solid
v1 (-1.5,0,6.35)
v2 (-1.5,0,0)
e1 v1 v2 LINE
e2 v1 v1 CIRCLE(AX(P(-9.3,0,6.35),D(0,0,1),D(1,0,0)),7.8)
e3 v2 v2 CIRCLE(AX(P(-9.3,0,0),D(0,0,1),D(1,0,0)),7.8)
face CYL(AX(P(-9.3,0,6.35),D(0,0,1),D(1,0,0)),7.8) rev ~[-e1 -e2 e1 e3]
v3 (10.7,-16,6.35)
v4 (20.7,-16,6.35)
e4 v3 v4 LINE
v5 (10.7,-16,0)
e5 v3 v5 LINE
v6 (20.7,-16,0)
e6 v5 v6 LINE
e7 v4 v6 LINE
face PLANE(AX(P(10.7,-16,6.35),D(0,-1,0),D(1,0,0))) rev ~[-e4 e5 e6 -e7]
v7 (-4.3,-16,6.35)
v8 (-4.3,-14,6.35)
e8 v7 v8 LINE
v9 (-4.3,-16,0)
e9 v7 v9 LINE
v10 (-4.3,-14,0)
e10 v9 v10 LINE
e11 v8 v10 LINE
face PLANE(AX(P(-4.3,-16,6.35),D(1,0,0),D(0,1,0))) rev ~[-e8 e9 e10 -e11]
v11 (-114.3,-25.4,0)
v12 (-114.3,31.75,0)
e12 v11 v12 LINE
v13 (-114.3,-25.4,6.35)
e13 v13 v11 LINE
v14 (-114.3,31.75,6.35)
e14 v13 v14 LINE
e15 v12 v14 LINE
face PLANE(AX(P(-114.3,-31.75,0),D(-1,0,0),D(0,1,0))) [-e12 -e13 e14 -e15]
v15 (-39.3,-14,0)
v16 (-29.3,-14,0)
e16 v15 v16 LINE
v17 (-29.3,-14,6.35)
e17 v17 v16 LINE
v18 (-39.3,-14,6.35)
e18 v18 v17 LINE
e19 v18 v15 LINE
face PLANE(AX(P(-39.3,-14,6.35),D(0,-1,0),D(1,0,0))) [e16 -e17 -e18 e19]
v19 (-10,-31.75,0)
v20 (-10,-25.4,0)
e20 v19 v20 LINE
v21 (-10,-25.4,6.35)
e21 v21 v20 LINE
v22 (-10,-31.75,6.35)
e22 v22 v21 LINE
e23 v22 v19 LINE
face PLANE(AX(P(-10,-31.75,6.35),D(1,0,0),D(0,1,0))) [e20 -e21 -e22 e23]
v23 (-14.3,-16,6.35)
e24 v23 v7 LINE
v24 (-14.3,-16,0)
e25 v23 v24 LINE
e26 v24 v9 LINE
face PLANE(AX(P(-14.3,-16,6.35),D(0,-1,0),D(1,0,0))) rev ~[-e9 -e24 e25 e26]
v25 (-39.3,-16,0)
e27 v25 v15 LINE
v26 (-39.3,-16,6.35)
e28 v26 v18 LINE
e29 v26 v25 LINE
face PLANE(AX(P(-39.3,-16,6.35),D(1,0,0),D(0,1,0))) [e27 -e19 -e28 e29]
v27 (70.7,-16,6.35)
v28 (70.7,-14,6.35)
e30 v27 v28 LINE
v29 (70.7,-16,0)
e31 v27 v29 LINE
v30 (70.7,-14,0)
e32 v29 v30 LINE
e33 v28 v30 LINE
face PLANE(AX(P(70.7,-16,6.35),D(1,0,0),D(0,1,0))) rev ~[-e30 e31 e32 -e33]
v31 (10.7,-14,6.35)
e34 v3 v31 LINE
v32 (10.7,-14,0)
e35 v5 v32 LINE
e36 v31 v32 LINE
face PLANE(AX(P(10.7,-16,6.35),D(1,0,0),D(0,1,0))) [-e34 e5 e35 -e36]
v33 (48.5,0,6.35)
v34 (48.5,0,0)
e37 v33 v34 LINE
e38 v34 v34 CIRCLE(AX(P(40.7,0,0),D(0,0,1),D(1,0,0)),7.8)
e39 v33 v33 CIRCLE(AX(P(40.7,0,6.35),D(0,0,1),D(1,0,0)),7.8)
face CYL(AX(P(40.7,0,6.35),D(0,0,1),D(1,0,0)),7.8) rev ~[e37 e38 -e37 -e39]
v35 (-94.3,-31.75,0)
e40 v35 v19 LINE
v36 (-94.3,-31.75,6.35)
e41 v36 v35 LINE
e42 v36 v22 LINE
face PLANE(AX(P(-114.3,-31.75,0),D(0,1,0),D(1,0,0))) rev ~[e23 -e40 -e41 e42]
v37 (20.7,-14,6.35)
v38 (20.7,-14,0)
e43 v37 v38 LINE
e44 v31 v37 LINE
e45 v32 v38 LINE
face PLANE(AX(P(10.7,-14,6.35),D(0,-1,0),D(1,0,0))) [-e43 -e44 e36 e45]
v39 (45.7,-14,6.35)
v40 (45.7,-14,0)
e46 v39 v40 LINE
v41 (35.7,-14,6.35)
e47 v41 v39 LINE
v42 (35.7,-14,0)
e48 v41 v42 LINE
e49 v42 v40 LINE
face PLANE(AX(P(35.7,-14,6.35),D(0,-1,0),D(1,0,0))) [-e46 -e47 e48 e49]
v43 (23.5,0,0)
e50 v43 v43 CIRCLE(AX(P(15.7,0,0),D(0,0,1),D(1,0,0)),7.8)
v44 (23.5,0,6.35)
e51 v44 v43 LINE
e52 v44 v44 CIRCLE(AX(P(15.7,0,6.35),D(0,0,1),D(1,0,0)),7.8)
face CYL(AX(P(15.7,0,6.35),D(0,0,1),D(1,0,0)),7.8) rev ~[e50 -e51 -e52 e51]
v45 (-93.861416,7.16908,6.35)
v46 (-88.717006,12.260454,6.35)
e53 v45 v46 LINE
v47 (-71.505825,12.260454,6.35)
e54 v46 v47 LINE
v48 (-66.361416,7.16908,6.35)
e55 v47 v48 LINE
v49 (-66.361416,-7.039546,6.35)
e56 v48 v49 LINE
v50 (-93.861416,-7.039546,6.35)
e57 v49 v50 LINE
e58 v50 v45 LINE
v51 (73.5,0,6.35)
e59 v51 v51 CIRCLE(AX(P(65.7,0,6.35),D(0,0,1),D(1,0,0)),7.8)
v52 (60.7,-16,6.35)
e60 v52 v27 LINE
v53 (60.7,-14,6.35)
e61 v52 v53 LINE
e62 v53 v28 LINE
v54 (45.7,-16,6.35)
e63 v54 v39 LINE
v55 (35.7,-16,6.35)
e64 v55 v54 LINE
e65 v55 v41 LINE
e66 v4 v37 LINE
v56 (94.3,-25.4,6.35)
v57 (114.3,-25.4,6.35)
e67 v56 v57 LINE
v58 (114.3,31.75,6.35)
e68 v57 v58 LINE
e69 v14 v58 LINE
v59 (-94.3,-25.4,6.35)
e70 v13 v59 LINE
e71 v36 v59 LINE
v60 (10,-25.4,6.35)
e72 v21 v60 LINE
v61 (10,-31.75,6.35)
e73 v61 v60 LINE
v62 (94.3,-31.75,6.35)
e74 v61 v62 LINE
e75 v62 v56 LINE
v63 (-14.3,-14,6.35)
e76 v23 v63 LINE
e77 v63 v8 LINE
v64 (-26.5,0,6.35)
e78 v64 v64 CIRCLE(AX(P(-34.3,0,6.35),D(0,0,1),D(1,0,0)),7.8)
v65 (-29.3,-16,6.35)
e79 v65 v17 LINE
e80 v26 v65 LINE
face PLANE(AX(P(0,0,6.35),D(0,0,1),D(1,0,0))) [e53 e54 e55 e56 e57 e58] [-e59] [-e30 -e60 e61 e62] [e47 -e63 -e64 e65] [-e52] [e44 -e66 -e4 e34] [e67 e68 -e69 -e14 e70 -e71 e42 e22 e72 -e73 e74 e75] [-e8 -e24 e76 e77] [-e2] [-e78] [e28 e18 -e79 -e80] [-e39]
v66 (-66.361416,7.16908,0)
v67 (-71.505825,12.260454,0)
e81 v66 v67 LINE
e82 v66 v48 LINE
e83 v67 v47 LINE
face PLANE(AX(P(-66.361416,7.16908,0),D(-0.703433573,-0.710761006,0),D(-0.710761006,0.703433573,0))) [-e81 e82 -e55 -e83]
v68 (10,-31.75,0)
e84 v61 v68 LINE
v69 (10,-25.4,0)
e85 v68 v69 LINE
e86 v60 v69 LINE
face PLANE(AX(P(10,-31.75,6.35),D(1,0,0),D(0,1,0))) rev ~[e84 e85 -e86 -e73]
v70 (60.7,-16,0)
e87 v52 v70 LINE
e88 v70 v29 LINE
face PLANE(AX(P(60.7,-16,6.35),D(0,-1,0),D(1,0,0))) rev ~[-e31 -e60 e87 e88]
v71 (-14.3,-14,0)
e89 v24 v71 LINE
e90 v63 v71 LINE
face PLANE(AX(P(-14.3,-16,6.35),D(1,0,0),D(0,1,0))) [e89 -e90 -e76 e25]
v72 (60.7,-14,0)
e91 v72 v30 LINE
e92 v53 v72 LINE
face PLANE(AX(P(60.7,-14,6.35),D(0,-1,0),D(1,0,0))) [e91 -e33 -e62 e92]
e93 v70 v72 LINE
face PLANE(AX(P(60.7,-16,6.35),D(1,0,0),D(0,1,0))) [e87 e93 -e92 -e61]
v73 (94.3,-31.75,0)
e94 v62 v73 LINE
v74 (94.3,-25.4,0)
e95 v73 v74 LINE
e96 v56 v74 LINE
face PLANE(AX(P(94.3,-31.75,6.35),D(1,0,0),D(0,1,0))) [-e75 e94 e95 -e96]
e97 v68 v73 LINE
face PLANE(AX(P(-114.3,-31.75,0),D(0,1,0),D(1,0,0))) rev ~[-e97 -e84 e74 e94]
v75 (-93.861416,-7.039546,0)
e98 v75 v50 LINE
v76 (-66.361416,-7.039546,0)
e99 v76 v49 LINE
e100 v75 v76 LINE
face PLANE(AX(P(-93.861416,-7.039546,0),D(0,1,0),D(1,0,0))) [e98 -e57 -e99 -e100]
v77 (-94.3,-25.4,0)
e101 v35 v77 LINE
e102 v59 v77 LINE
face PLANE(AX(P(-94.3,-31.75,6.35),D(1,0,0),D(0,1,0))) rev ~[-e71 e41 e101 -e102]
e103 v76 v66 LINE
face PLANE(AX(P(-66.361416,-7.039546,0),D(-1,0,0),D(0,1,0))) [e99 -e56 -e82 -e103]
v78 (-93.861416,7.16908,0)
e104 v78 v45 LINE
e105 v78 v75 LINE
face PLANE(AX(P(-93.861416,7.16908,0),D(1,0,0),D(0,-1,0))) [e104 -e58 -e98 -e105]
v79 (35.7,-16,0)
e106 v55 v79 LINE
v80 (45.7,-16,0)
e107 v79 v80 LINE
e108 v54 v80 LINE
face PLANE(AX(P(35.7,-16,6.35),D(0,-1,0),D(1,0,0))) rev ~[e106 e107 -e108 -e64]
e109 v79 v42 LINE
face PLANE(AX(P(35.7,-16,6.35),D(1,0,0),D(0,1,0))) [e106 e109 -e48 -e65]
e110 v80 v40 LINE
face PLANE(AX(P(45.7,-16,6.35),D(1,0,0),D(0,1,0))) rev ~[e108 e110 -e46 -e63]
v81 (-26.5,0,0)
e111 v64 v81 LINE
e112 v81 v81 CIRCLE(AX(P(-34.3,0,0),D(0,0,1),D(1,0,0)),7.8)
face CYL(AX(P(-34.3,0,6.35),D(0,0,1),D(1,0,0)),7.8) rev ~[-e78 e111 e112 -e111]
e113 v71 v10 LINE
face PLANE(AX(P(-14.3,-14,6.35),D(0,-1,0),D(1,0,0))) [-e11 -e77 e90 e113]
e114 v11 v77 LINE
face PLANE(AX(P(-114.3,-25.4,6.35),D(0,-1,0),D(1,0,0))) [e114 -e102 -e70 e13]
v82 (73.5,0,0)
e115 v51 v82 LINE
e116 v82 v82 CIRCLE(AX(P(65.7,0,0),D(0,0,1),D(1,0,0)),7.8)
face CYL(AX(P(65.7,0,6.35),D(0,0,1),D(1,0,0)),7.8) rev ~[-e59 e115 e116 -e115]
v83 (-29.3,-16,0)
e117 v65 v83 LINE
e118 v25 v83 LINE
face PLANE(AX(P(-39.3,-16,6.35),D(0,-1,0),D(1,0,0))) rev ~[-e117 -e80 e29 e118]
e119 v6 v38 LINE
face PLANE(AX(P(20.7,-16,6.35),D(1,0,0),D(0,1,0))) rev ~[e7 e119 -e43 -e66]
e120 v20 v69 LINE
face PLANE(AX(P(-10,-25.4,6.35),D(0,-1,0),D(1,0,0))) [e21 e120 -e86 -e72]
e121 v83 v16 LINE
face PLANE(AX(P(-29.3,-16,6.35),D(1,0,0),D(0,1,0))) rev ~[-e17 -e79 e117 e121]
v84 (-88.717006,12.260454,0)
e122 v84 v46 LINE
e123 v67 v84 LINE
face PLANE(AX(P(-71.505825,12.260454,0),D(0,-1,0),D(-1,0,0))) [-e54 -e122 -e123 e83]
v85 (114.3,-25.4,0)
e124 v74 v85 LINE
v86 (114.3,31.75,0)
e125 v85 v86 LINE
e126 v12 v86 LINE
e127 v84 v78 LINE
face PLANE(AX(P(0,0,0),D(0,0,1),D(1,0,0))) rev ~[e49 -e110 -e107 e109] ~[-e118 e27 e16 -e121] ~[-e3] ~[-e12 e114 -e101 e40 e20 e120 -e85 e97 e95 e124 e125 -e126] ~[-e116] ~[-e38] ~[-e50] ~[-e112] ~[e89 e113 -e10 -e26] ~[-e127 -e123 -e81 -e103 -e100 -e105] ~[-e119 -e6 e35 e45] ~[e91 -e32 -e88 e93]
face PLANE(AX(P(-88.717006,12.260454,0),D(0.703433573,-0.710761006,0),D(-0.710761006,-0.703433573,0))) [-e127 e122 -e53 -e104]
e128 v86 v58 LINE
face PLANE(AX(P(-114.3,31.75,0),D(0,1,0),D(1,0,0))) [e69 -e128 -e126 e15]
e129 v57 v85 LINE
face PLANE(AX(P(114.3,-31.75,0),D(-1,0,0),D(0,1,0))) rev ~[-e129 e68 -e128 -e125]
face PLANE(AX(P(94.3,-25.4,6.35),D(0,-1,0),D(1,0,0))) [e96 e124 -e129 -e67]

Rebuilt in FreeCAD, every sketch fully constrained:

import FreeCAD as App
import Part
import Sketcher

V = App.Vector


def add_polygon(sketch, points):
    """Adds a closed chain of lines whose ends are joined by coincident constraints."""
    first, n = sketch.GeometryCount, len(points)
    for a, b in zip(points, points[1:] + points[:1]):
        sketch.addGeometry(Part.LineSegment(App.Vector(*a, 0), App.Vector(*b, 0)), False)
    for i in range(n):
        sketch.addConstraint(Sketcher.Constraint("Coincident", first + i, 2, first + (i + 1) % n, 1))

doc = App.newDocument("Part")
body = doc.addObject("PartDesign::Body", "Body")

sketch1 = body.newObject("Sketcher::SketchObject", "Sketch")
sketch1.AttachmentSupport = (doc.getObject("XY_Plane"), [""])
sketch1.MapMode = "FlatFace"
add_polygon(sketch1, [(-114, 32), (-114, -32), (114, -32), (114, 32)])
sketch1.addConstraint(Sketcher.Constraint("Vertical", 0))
sketch1.addConstraint(Sketcher.Constraint("Horizontal", 1))
sketch1.addConstraint(Sketcher.Constraint("Vertical", 2))
sketch1.addConstraint(Sketcher.Constraint("Horizontal", 3))
sketch1.addConstraint(Sketcher.Constraint("Symmetric", 0, 2, 2, 2, -1, 1))
sketch1.addConstraint(Sketcher.Constraint("DistanceX", 1, 1, 1, 2, 228.6))
sketch1.addConstraint(Sketcher.Constraint("DistanceY", 0, 2, 0, 1, 63.5))
pad1 = body.newObject("PartDesign::Pad", "Pad")
pad1.Profile = sketch1
pad1.Length = 6.35

sketch2 = body.newObject("Sketcher::SketchObject", "Sketch001")
sketch2.AttachmentSupport = (doc.getObject("XY_Plane"), [""])
sketch2.MapMode = "FlatFace"
sketch2.AttachmentOffset = App.Placement(V(0, 0, 6.35), App.Rotation())
sketch2.addGeometry(Part.Circle(V(-34.3, 0, 0), V(0, 0, 1), 7.8), False)
sketch2.addGeometry(Part.Circle(V(-9.3, 0, 0), V(0, 0, 1), 7.8), False)
sketch2.addGeometry(Part.Circle(V(15.7, 0, 0), V(0, 0, 1), 7.8), False)
sketch2.addGeometry(Part.Circle(V(40.7, 0, 0), V(0, 0, 1), 7.8), False)
sketch2.addGeometry(Part.Circle(V(65.7, 0, 0), V(0, 0, 1), 7.8), False)
add_polygon(sketch2, [(-114.3, -25.4), (-114.3, -31.8), (-94.3, -31.8), (-94.3, -25.4)])
add_polygon(sketch2, [(-10, -25.4), (-10, -31.8), (10, -31.8), (10, -25.4)])
add_polygon(sketch2, [(94.3, -25.4), (94.3, -31.8), (114.3, -31.8), (114.3, -25.4)])
add_polygon(sketch2, [(-14.3, -14), (-14.3, -16), (-4.3, -16), (-4.3, -14)])
add_polygon(sketch2, [(-39.3, -14), (-39.3, -16), (-29.3, -16), (-29.3, -14)])
add_polygon(sketch2, [(10.7, -14), (10.7, -16), (20.7, -16), (20.7, -14)])
add_polygon(sketch2, [(35.7, -14), (35.7, -16), (45.7, -16), (45.7, -14)])
add_polygon(sketch2, [(60.7, -14), (60.7, -16), (70.7, -16), (70.7, -14)])
sketch2.addConstraint(Sketcher.Constraint("Vertical", 5))
sketch2.addConstraint(Sketcher.Constraint("Horizontal", 6))
sketch2.addConstraint(Sketcher.Constraint("Vertical", 7))
sketch2.addConstraint(Sketcher.Constraint("Horizontal", 8))
sketch2.addConstraint(Sketcher.Constraint("Vertical", 9))
sketch2.addConstraint(Sketcher.Constraint("Horizontal", 10))
sketch2.addConstraint(Sketcher.Constraint("Vertical", 11))
sketch2.addConstraint(Sketcher.Constraint("Horizontal", 12))
sketch2.addConstraint(Sketcher.Constraint("Vertical", 13))
sketch2.addConstraint(Sketcher.Constraint("Horizontal", 14))
sketch2.addConstraint(Sketcher.Constraint("Vertical", 15))
sketch2.addConstraint(Sketcher.Constraint("Horizontal", 16))
sketch2.addConstraint(Sketcher.Constraint("Vertical", 17))
sketch2.addConstraint(Sketcher.Constraint("Horizontal", 18))
sketch2.addConstraint(Sketcher.Constraint("Vertical", 19))
sketch2.addConstraint(Sketcher.Constraint("Horizontal", 20))
sketch2.addConstraint(Sketcher.Constraint("Vertical", 21))
sketch2.addConstraint(Sketcher.Constraint("Horizontal", 22))
sketch2.addConstraint(Sketcher.Constraint("Vertical", 23))
sketch2.addConstraint(Sketcher.Constraint("Horizontal", 24))
sketch2.addConstraint(Sketcher.Constraint("Vertical", 25))
sketch2.addConstraint(Sketcher.Constraint("Horizontal", 26))
sketch2.addConstraint(Sketcher.Constraint("Vertical", 27))
sketch2.addConstraint(Sketcher.Constraint("Horizontal", 28))
sketch2.addConstraint(Sketcher.Constraint("Vertical", 29))
sketch2.addConstraint(Sketcher.Constraint("Horizontal", 30))
sketch2.addConstraint(Sketcher.Constraint("Vertical", 31))
sketch2.addConstraint(Sketcher.Constraint("Horizontal", 32))
sketch2.addConstraint(Sketcher.Constraint("Vertical", 33))
sketch2.addConstraint(Sketcher.Constraint("Horizontal", 34))
sketch2.addConstraint(Sketcher.Constraint("Vertical", 35))
sketch2.addConstraint(Sketcher.Constraint("Horizontal", 36))
sketch2.addConstraint(Sketcher.Constraint("Equal", 0, 1))
sketch2.addConstraint(Sketcher.Constraint("Equal", 1, 2))
sketch2.addConstraint(Sketcher.Constraint("Equal", 2, 3))
sketch2.addConstraint(Sketcher.Constraint("Equal", 3, 4))
sketch2.addConstraint(Sketcher.Constraint("Symmetric", 6, 2, 13, 2, -2))
sketch2.addConstraint(Sketcher.Constraint("Symmetric", 8, 2, 15, 2, -2))
sketch2.addConstraint(Sketcher.Constraint("PointOnObject", 0, 3, -1))
sketch2.addConstraint(Sketcher.Constraint("PointOnObject", 1, 3, -1))
sketch2.addConstraint(Sketcher.Constraint("PointOnObject", 2, 3, -1))
sketch2.addConstraint(Sketcher.Constraint("PointOnObject", 3, 3, -1))
sketch2.addConstraint(Sketcher.Constraint("PointOnObject", 4, 3, -1))
sketch2.addConstraint(Sketcher.Constraint("Horizontal", 6, 2, 9, 2))
sketch2.addConstraint(Sketcher.Constraint("Horizontal", 8, 2, 11, 2))
sketch2.addConstraint(Sketcher.Constraint("Horizontal", 18, 2, 21, 2))
sketch2.addConstraint(Sketcher.Constraint("Horizontal", 20, 2, 23, 2))
sketch2.addConstraint(Sketcher.Constraint("Horizontal", 22, 2, 25, 2))
sketch2.addConstraint(Sketcher.Constraint("Horizontal", 24, 2, 27, 2))
sketch2.addConstraint(Sketcher.Constraint("Horizontal", 26, 2, 29, 2))
sketch2.addConstraint(Sketcher.Constraint("Horizontal", 28, 2, 31, 2))
sketch2.addConstraint(Sketcher.Constraint("Horizontal", 30, 2, 33, 2))
sketch2.addConstraint(Sketcher.Constraint("Horizontal", 32, 2, 35, 2))
sketch2.addConstraint(Sketcher.Constraint("Equal", 8, 10))
sketch2.addConstraint(Sketcher.Constraint("Equal", 20, 22))
sketch2.addConstraint(Sketcher.Constraint("Equal", 24, 26))
sketch2.addConstraint(Sketcher.Constraint("Equal", 28, 30))
sketch2.addConstraint(Sketcher.Constraint("Equal", 32, 34))
sketch2.addConstraint(Sketcher.Constraint("Diameter", 0, 15.6))
sketch2.addConstraint(Sketcher.Constraint("DistanceX", 6, 1, 6, 2, 20.0))
sketch2.addConstraint(Sketcher.Constraint("DistanceX", 18, 1, 18, 2, 10.0))
sketch2.addConstraint(Sketcher.Constraint("DistanceY", 17, 2, 17, 1, 2.0))
sketch2.addConstraint(Sketcher.Constraint("DistanceX", 9, 2, -1, 1, 10.0))
sketch2.addConstraint(Sketcher.Constraint("DistanceY", 17, 2, -1, 1, 16.0))
sketch2.addConstraint(Sketcher.Constraint("DistanceX", 0, 3, 1, 3, 25.0))
sketch2.addConstraint(Sketcher.Constraint("DistanceX", 1, 3, 2, 3, 25.0))
sketch2.addConstraint(Sketcher.Constraint("DistanceX", 2, 3, 3, 3, 25.0))
sketch2.addConstraint(Sketcher.Constraint("DistanceX", 3, 3, 4, 3, 25.0))
sketch2.addConstraint(Sketcher.Constraint("DistanceX", 5, 2, 0, 3, 80.0))
sketch2.addConstraint(Sketcher.Constraint("DistanceX", 17, 2, 1, 3, 5.0))
sketch2.addConstraint(Sketcher.Constraint("DistanceX", 21, 2, 0, 3, 5.0))
sketch2.addConstraint(Sketcher.Constraint("DistanceX", 18, 2, 25, 2, 15.0))
sketch2.addConstraint(Sketcher.Constraint("DistanceX", 26, 2, 29, 2, 15.0))
sketch2.addConstraint(Sketcher.Constraint("DistanceX", 30, 2, 33, 2, 15.0))
sketch2.addConstraint(Sketcher.Constraint("DistanceY", 5, 2, 5, 1, 6.35))
sketch2.addConstraint(Sketcher.Constraint("DistanceX", 0, 3, -1, 1, 34.3))
sketch2.addConstraint(Sketcher.Constraint("DistanceY", 7, 2, -1, 1, 25.4))
pocket1 = body.newObject("PartDesign::Pocket", "Pocket")
pocket1.Profile = sketch2
pocket1.Type = "ThroughAll"

sketch3 = body.newObject("Sketcher::SketchObject", "Sketch002")
sketch3.AttachmentSupport = (doc.getObject("XY_Plane"), [""])
sketch3.MapMode = "FlatFace"
add_polygon(sketch3, [(-66, -7), (-94, -7), (-94, 7), (-89, 12), (-72, 12), (-66, 7)])
sketch3.addConstraint(Sketcher.Constraint("Horizontal", 0))
sketch3.addConstraint(Sketcher.Constraint("Vertical", 1))
sketch3.addConstraint(Sketcher.Constraint("Horizontal", 3))
sketch3.addConstraint(Sketcher.Constraint("Vertical", 5))
sketch3.addConstraint(Sketcher.Constraint("Horizontal", 1, 2, 4, 2))
sketch3.addConstraint(Sketcher.Constraint("Equal", 2, 4))
sketch3.addConstraint(Sketcher.Constraint("DistanceX", 0, 2, 0, 1, 27.5))
sketch3.addConstraint(Sketcher.Constraint("DistanceY", 0, 2, 2, 2, 19.3))
sketch3.addConstraint(Sketcher.Constraint("DistanceX", 3, 1, 3, 2, 17.211182))
sketch3.addConstraint(Sketcher.Constraint("Distance", 2, 7.237889))
sketch3.addConstraint(Sketcher.Constraint("DistanceY", -1, 1, 1, 2, 7.16908))
sketch3.addConstraint(Sketcher.Constraint("DistanceX", 0, 2, -1, 1, 93.861416))
pocket2 = body.newObject("PartDesign::Pocket", "Pocket001")
pocket2.Profile = sketch3
pocket2.Type = "ThroughAll"
pocket2.Reversed = True

doc.recompute()
